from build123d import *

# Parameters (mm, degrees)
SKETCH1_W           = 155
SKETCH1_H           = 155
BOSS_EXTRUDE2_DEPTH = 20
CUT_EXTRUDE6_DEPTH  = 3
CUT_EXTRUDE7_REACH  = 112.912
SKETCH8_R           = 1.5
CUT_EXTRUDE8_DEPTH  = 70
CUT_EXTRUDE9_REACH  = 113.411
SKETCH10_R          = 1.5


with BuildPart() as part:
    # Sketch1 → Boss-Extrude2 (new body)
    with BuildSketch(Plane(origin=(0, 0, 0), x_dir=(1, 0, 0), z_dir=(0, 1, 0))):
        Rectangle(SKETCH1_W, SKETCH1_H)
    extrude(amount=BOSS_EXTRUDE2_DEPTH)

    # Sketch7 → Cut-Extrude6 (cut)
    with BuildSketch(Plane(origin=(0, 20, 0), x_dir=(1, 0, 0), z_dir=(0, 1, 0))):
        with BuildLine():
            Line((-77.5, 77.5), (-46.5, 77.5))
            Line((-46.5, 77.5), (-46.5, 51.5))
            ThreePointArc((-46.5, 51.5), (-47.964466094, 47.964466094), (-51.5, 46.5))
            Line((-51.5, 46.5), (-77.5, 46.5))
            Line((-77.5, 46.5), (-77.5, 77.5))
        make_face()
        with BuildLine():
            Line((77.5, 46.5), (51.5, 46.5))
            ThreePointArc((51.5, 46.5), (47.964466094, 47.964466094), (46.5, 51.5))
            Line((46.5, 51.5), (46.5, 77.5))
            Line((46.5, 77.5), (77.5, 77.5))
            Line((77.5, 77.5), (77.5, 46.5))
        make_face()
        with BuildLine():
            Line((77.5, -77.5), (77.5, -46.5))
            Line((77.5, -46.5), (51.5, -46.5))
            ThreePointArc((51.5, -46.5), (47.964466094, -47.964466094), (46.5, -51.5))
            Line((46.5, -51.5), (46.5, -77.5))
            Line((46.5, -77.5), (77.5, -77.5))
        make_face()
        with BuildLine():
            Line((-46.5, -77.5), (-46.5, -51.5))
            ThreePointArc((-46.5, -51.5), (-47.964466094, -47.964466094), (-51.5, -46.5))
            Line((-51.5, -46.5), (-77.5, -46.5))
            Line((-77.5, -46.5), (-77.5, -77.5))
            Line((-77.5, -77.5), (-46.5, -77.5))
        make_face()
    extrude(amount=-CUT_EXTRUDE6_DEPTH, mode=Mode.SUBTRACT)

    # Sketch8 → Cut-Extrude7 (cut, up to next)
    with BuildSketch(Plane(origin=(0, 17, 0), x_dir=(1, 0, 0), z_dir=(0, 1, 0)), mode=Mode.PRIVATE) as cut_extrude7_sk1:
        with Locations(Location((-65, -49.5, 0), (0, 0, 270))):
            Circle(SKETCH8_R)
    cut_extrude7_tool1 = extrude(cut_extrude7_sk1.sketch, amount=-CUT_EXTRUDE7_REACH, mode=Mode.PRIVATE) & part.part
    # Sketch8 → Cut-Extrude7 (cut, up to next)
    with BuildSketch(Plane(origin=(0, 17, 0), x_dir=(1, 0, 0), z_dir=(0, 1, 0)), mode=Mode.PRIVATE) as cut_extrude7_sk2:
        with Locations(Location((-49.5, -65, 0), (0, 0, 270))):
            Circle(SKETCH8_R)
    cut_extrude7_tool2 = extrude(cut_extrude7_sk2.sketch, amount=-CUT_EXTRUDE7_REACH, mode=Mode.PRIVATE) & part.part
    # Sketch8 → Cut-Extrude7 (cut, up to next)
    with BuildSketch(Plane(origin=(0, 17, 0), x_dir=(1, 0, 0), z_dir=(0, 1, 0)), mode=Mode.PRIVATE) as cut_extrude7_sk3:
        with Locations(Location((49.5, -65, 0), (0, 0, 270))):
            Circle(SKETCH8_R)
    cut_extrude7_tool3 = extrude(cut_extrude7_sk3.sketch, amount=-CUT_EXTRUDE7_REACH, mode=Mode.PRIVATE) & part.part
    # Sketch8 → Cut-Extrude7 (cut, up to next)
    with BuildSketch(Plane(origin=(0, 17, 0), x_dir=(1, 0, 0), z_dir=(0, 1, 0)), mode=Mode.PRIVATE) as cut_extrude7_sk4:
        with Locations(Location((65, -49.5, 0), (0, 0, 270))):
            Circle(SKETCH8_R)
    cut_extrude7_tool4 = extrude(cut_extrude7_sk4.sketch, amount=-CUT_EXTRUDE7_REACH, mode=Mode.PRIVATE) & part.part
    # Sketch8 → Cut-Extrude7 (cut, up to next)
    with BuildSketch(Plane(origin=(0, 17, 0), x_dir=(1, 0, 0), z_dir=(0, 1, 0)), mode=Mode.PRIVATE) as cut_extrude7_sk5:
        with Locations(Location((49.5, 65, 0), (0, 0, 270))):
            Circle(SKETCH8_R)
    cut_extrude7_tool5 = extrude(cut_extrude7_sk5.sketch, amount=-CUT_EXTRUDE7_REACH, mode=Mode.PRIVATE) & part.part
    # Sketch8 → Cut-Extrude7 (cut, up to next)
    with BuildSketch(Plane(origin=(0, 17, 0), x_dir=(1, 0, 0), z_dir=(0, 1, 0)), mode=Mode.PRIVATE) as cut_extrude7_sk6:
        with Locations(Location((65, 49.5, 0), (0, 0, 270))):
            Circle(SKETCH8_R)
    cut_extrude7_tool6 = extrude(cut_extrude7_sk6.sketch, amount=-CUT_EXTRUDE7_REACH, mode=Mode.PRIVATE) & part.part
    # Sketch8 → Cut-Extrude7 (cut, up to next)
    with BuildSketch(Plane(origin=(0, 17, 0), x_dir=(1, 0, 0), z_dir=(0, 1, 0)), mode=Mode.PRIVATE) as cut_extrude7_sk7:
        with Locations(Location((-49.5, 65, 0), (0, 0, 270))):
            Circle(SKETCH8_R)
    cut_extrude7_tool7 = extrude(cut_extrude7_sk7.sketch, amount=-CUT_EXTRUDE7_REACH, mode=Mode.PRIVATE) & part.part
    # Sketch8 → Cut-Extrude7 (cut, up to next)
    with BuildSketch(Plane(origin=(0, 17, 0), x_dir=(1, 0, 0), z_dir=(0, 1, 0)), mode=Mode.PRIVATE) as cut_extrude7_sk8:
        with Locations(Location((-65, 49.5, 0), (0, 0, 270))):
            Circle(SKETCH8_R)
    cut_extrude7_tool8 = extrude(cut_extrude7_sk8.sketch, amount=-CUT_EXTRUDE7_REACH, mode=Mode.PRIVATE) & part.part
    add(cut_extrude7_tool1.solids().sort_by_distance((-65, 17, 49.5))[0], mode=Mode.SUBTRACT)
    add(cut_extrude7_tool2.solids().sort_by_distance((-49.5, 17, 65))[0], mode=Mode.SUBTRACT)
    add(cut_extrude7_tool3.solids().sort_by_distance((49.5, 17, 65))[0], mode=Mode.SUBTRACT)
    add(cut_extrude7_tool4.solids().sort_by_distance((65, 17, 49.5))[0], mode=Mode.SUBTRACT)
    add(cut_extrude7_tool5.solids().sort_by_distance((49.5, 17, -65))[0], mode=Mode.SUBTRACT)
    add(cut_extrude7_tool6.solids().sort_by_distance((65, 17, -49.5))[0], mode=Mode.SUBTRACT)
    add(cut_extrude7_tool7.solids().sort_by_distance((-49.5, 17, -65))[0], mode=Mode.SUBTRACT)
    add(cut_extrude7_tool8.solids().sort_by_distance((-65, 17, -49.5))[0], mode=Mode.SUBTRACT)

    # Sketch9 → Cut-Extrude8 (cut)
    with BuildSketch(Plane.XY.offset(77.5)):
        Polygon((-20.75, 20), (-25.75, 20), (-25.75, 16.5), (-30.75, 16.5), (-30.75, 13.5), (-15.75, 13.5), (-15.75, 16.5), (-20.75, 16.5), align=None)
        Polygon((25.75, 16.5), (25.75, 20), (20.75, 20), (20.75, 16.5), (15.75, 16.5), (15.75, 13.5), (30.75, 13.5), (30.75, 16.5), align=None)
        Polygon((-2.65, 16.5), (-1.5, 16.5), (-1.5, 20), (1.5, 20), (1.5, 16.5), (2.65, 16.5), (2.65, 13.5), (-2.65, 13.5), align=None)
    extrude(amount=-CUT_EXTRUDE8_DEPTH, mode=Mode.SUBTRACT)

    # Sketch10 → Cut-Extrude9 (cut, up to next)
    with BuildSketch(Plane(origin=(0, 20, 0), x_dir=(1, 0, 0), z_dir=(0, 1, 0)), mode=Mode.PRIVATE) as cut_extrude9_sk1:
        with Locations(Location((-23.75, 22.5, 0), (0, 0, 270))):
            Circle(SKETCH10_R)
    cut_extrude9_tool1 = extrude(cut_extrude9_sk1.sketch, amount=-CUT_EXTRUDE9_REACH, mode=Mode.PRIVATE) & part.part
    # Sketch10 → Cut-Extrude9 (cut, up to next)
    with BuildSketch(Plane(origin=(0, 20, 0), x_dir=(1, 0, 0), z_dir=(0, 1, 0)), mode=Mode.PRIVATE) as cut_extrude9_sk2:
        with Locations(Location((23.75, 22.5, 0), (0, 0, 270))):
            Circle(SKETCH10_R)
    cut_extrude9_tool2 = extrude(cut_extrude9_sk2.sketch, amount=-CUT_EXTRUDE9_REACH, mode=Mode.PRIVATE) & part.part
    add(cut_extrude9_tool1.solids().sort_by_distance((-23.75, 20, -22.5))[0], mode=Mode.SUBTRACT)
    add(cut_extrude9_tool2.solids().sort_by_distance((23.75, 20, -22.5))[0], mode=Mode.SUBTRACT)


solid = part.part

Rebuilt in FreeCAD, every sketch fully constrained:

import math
import FreeCAD as App
import Part
import Sketcher

V = App.Vector


def add_polygon(sketch, points):
    """Adds a closed chain of lines whose ends are joined by coincident constraints."""
    first, n = sketch.GeometryCount, len(points)
    for a, b in zip(points, points[1:] + points[:1]):
        sketch.addGeometry(Part.LineSegment(App.Vector(*a, 0), App.Vector(*b, 0)), False)
    for i in range(n):
        sketch.addConstraint(Sketcher.Constraint("Coincident", first + i, 2, first + (i + 1) % n, 1))

doc = App.newDocument("Part")
body = doc.addObject("PartDesign::Body", "Body")

sketch1 = body.newObject("Sketcher::SketchObject", "Sketch")
sketch1.AttachmentSupport = (doc.getObject("XZ_Plane"), [""])
sketch1.MapMode = "FlatFace"
add_polygon(sketch1, [(-78, -78), (-78, 78), (78, 78), (78, -78)])
sketch1.addConstraint([
    Sketcher.Constraint("Vertical", 0),
    Sketcher.Constraint("Horizontal", 1),
    Sketcher.Constraint("Vertical", 2),
    Sketcher.Constraint("Horizontal", 3),
    Sketcher.Constraint("Symmetric", 0, 2, 2, 2, -1, 1),
    Sketcher.Constraint("Equal", 3, 0),
    Sketcher.Constraint("DistanceX", 1, 1, 1, 2, 155.0),
])
pad1 = body.newObject("PartDesign::Pad", "Pad")
pad1.Profile = sketch1
pad1.Length = 20
pad1.Reversed = True

sketch2 = body.newObject("Sketcher::SketchObject", "Sketch001")
sketch2.AttachmentSupport = (doc.getObject("XZ_Plane"), [""])
sketch2.MapMode = "FlatFace"
sketch2.AttachmentOffset = App.Placement(V(0, 0, -20), App.Rotation())
sketch2.addGeometry([
    Part.LineSegment(V(-46, -78, 0), V(-78, -78, 0)),
    Part.LineSegment(V(-78, -78, 0), V(-78, -46, 0)),
    Part.LineSegment(V(-78, -46, 0), V(-52, -46, 0)),
    Part.ArcOfCircle(Part.Circle(V(-52, -52, 0), V(0, 0, 1), 5), math.radians(0), math.radians(90)),
    Part.LineSegment(V(-46, -52, 0), V(-46, -78, 0)),
    Part.LineSegment(V(52, -46, 0), V(78, -46, 0)),
    Part.LineSegment(V(78, -46, 0), V(78, -78, 0)),
    Part.LineSegment(V(78, -78, 0), V(46, -78, 0)),
    Part.LineSegment(V(46, -78, 0), V(46, -52, 0)),
    Part.ArcOfCircle(Part.Circle(V(52, -52, 0), V(0, 0, 1), 5), math.radians(90), math.radians(180)),
    Part.LineSegment(V(78, 78, 0), V(78, 46, 0)),
    Part.LineSegment(V(78, 46, 0), V(52, 46, 0)),
    Part.ArcOfCircle(Part.Circle(V(52, 52, 0), V(0, 0, 1), 5), math.radians(180), math.radians(270)),
    Part.LineSegment(V(46, 52, 0), V(46, 78, 0)),
    Part.LineSegment(V(46, 78, 0), V(78, 78, 0)),
    Part.LineSegment(V(-46, 78, 0), V(-46, 52, 0)),
    Part.ArcOfCircle(Part.Circle(V(-52, 52, 0), V(0, 0, 1), 5), math.radians(-90), math.radians(0)),
    Part.LineSegment(V(-52, 46, 0), V(-78, 46, 0)),
    Part.LineSegment(V(-78, 46, 0), V(-78, 78, 0)),
    Part.LineSegment(V(-78, 78, 0), V(-46, 78, 0)),
], False)
sketch2.addConstraint([
    Sketcher.Constraint("Coincident", 0, 2, 1, 1),
    Sketcher.Constraint("Coincident", 1, 2, 2, 1),
    Sketcher.Constraint("Tangent", 2, 2, 3, 2),
    Sketcher.Constraint("Tangent", 3, 1, 4, 1),
    Sketcher.Constraint("Coincident", 4, 2, 0, 1),
    Sketcher.Constraint("Coincident", 5, 2, 6, 1),
    Sketcher.Constraint("Coincident", 6, 2, 7, 1),
    Sketcher.Constraint("Coincident", 7, 2, 8, 1),
    Sketcher.Constraint("Tangent", 8, 2, 9, 2),
    Sketcher.Constraint("Tangent", 9, 1, 5, 1),
    Sketcher.Constraint("Coincident", 10, 2, 11, 1),
    Sketcher.Constraint("Tangent", 11, 2, 12, 2),
    Sketcher.Constraint("Tangent", 12, 1, 13, 1),
    Sketcher.Constraint("Coincident", 13, 2, 14, 1),
    Sketcher.Constraint("Coincident", 14, 2, 10, 1),
    Sketcher.Constraint("Tangent", 15, 2, 16, 2),
    Sketcher.Constraint("Tangent", 16, 1, 17, 1),
    Sketcher.Constraint("Coincident", 17, 2, 18, 1),
    Sketcher.Constraint("Coincident", 18, 2, 19, 1),
    Sketcher.Constraint("Coincident", 19, 2, 15, 1),
    Sketcher.Constraint("Horizontal", 0),
    Sketcher.Constraint("Vertical", 1),
    Sketcher.Constraint("Horizontal", 2),
    Sketcher.Constraint("Vertical", 4),
    Sketcher.Constraint("Horizontal", 5),
    Sketcher.Constraint("Vertical", 6),
    Sketcher.Constraint("Horizontal", 7),
    Sketcher.Constraint("Vertical", 8),
    Sketcher.Constraint("Vertical", 10),
    Sketcher.Constraint("Horizontal", 11),
    Sketcher.Constraint("Vertical", 13),
    Sketcher.Constraint("Horizontal", 14),
    Sketcher.Constraint("Vertical", 15),
    Sketcher.Constraint("Horizontal", 17),
    Sketcher.Constraint("Vertical", 18),
    Sketcher.Constraint("Horizontal", 19),
    Sketcher.Constraint("Equal", 3, 9),
    Sketcher.Constraint("Equal", 9, 12),
    Sketcher.Constraint("Equal", 12, 16),
    Sketcher.Constraint("Symmetric", 3, 3, 12, 3, -1, 1),
    Sketcher.Constraint("Symmetric", 9, 3, 16, 3, -1, 1),
    Sketcher.Constraint("Symmetric", 0, 2, 14, 2, -1, 1),
    Sketcher.Constraint("Symmetric", 6, 2, 18, 2, -1, 1),
    Sketcher.Constraint("Symmetric", 3, 3, 9, 3, -2),
    Sketcher.Constraint("Symmetric", 0, 2, 6, 2, -2),
    Sketcher.Constraint("Equal", 19, 1),
    Sketcher.Constraint("Radius", 3, 5.0),
    Sketcher.Constraint("DistanceX", 0, 2, 0, 1, 31.0),
    Sketcher.Constraint("DistanceX", 3, 3, 9, 3, 103.0),
    Sketcher.Constraint("DistanceY", 9, 3, 12, 3, 103.0),
])
pocket1 = body.newObject("PartDesign::Pocket", "Pocket")
pocket1.Profile = sketch2
pocket1.Length = 3
pocket1.Reversed = True

sketch3 = body.newObject("Sketcher::SketchObject", "Sketch002")
sketch3.AttachmentSupport = (doc.getObject("XZ_Plane"), [""])
sketch3.MapMode = "FlatFace"
sketch3.AttachmentOffset = App.Placement(V(0, 0, -17), App.Rotation())
sketch3.addGeometry(Part.Circle(V(-65, 49.5, 0), V(0, 0, 1), 1.5), False)
sketch3.addConstraint([
    Sketcher.Constraint("Diameter", 0, 3.0),
    Sketcher.Constraint("DistanceX", 0, 3, -1, 1, 65.0),
    Sketcher.Constraint("DistanceY", -1, 1, 0, 3, 49.5),
])
pocket2 = body.newObject("PartDesign::Pocket", "Pocket001")
pocket2.Profile = sketch3
pocket2.Type = "UpToFirst"
pocket2.Reversed = True

sketch4 = body.newObject("Sketcher::SketchObject", "Sketch003")
sketch4.AttachmentSupport = (doc.getObject("XZ_Plane"), [""])
sketch4.MapMode = "FlatFace"
sketch4.AttachmentOffset = App.Placement(V(0, 0, -17), App.Rotation())
sketch4.addGeometry(Part.Circle(V(-49.5, 65, 0), V(0, 0, 1), 1.5), False)
sketch4.addConstraint([
    Sketcher.Constraint("Diameter", 0, 3.0),
    Sketcher.Constraint("DistanceY", -1, 1, 0, 3, 65.0),
    Sketcher.Constraint("DistanceX", 0, 3, -1, 1, 49.5),
])
pocket3 = body.newObject("PartDesign::Pocket", "Pocket002")
pocket3.Profile = sketch4
pocket3.Type = "UpToFirst"
pocket3.Reversed = True

sketch5 = body.newObject("Sketcher::SketchObject", "Sketch004")
sketch5.AttachmentSupport = (doc.getObject("XZ_Plane"), [""])
sketch5.MapMode = "FlatFace"
sketch5.AttachmentOffset = App.Placement(V(0, 0, -17), App.Rotation())
sketch5.addGeometry(Part.Circle(V(49.5, 65, 0), V(0, 0, 1), 1.5), False)
sketch5.addConstraint([
    Sketcher.Constraint("Diameter", 0, 3.0),
    Sketcher.Constraint("DistanceY", -1, 1, 0, 3, 65.0),
    Sketcher.Constraint("DistanceX", -1, 1, 0, 3, 49.5),
])
pocket4 = body.newObject("PartDesign::Pocket", "Pocket003")
pocket4.Profile = sketch5
pocket4.Type = "UpToFirst"
pocket4.Reversed = True

sketch6 = body.newObject("Sketcher::SketchObject", "Sketch005")
sketch6.AttachmentSupport = (doc.getObject("XZ_Plane"), [""])
sketch6.MapMode = "FlatFace"
sketch6.AttachmentOffset = App.Placement(V(0, 0, -17), App.Rotation())
sketch6.addGeometry(Part.Circle(V(65, 49.5, 0), V(0, 0, 1), 1.5), False)
sketch6.addConstraint([
    Sketcher.Constraint("Diameter", 0, 3.0),
    Sketcher.Constraint("DistanceX", -1, 1, 0, 3, 65.0),
    Sketcher.Constraint("DistanceY", -1, 1, 0, 3, 49.5),
])
pocket5 = body.newObject("PartDesign::Pocket", "Pocket004")
pocket5.Profile = sketch6
pocket5.Type = "UpToFirst"
pocket5.Reversed = True

sketch7 = body.newObject("Sketcher::SketchObject", "Sketch006")
sketch7.AttachmentSupport = (doc.getObject("XZ_Plane"), [""])
sketch7.MapMode = "FlatFace"
sketch7.AttachmentOffset = App.Placement(V(0, 0, -17), App.Rotation())
sketch7.addGeometry(Part.Circle(V(49.5, -65, 0), V(0, 0, 1), 1.5), False)
sketch7.addConstraint([
    Sketcher.Constraint("Diameter", 0, 3.0),
    Sketcher.Constraint("DistanceY", 0, 3, -1, 1, 65.0),
    Sketcher.Constraint("DistanceX", -1, 1, 0, 3, 49.5),
])
pocket6 = body.newObject("PartDesign::Pocket", "Pocket005")
pocket6.Profile = sketch7
pocket6.Type = "UpToFirst"
pocket6.Reversed = True

sketch8 = body.newObject("Sketcher::SketchObject", "Sketch007")
sketch8.AttachmentSupport = (doc.getObject("XZ_Plane"), [""])
sketch8.MapMode = "FlatFace"
sketch8.AttachmentOffset = App.Placement(V(0, 0, -17), App.Rotation())
sketch8.addGeometry(Part.Circle(V(65, -49.5, 0), V(0, 0, 1), 1.5), False)
sketch8.addConstraint([
    Sketcher.Constraint("Diameter", 0, 3.0),
    Sketcher.Constraint("DistanceX", -1, 1, 0, 3, 65.0),
    Sketcher.Constraint("DistanceY", 0, 3, -1, 1, 49.5),
])
pocket7 = body.newObject("PartDesign::Pocket", "Pocket006")
pocket7.Profile = sketch8
pocket7.Type = "UpToFirst"
pocket7.Reversed = True

sketch9 = body.newObject("Sketcher::SketchObject", "Sketch008")
sketch9.AttachmentSupport = (doc.getObject("XZ_Plane"), [""])
sketch9.MapMode = "FlatFace"
sketch9.AttachmentOffset = App.Placement(V(0, 0, -17), App.Rotation())
sketch9.addGeometry(Part.Circle(V(-49.5, -65, 0), V(0, 0, 1), 1.5), False)
sketch9.addConstraint([
    Sketcher.Constraint("Diameter", 0, 3.0),
    Sketcher.Constraint("DistanceY", 0, 3, -1, 1, 65.0),
    Sketcher.Constraint("DistanceX", 0, 3, -1, 1, 49.5),
])
pocket8 = body.newObject("PartDesign::Pocket", "Pocket007")
pocket8.Profile = sketch9
pocket8.Type = "UpToFirst"
pocket8.Reversed = True

sketch10 = body.newObject("Sketcher::SketchObject", "Sketch009")
sketch10.AttachmentSupport = (doc.getObject("XZ_Plane"), [""])
sketch10.MapMode = "FlatFace"
sketch10.AttachmentOffset = App.Placement(V(0, 0, -17), App.Rotation())
sketch10.addGeometry(Part.Circle(V(-65, -49.5, 0), V(0, 0, 1), 1.5), False)
sketch10.addConstraint([
    Sketcher.Constraint("Diameter", 0, 3.0),
    Sketcher.Constraint("DistanceX", 0, 3, -1, 1, 65.0),
    Sketcher.Constraint("DistanceY", 0, 3, -1, 1, 49.5),
])
pocket9 = body.newObject("PartDesign::Pocket", "Pocket008")
pocket9.Profile = sketch10
pocket9.Type = "UpToFirst"
pocket9.Reversed = True

sketch11 = body.newObject("Sketcher::SketchObject", "Sketch010")
sketch11.AttachmentSupport = (doc.getObject("XY_Plane"), [""])
sketch11.MapMode = "FlatFace"
sketch11.AttachmentOffset = App.Placement(V(0, 0, 77.5), App.Rotation())
add_polygon(sketch11, [(-20.8, 20), (-25.8, 20), (-25.8, 16.5), (-30.8, 16.5), (-30.8, 13.5), (-15.8, 13.5), (-15.8, 16.5), (-20.8, 16.5)])
add_polygon(sketch11, [(25.8, 16.5), (25.8, 20), (20.8, 20), (20.8, 16.5), (15.8, 16.5), (15.8, 13.5), (30.8, 13.5), (30.8, 16.5)])
add_polygon(sketch11, [(-1.5, 16.5), (-2.6, 16.5), (-2.6, 13.5), (2.6, 13.5), (2.6, 16.5), (1.5, 16.5), (1.5, 20), (-1.5, 20)])
sketch11.addConstraint([
    Sketcher.Constraint("Horizontal", 0),
    Sketcher.Constraint("Vertical", 1),
    Sketcher.Constraint("Horizontal", 2),
    Sketcher.Constraint("Vertical", 3),
    Sketcher.Constraint("Horizontal", 4),
    Sketcher.Constraint("Vertical", 5),
    Sketcher.Constraint("Horizontal", 6),
    Sketcher.Constraint("Vertical", 7),
    Sketcher.Constraint("Vertical", 8),
    Sketcher.Constraint("Horizontal", 9),
    Sketcher.Constraint("Vertical", 10),
    Sketcher.Constraint("Horizontal", 11),
    Sketcher.Constraint("Vertical", 12),
    Sketcher.Constraint("Horizontal", 13),
    Sketcher.Constraint("Vertical", 14),
    Sketcher.Constraint("Horizontal", 15),
    Sketcher.Constraint("Horizontal", 16),
    Sketcher.Constraint("Vertical", 17),
    Sketcher.Constraint("Horizontal", 18),
    Sketcher.Constraint("Vertical", 19),
    Sketcher.Constraint("Horizontal", 20),
    Sketcher.Constraint("Vertical", 21),
    Sketcher.Constraint("Horizontal", 22),
    Sketcher.Constraint("Vertical", 23),
    Sketcher.Constraint("Symmetric", 0, 2, 8, 2, -2),
    Sketcher.Constraint("Symmetric", 6, 2, 10, 2, -2),
    Sketcher.Constraint("Symmetric", 4, 2, 12, 2, -2),
    Sketcher.Constraint("Symmetric", 2, 2, 14, 2, -2),
    Sketcher.Constraint("Symmetric", 16, 2, 19, 2, -2),
    Sketcher.Constraint("Horizontal", 2, 2, 5, 2),
    Sketcher.Constraint("Horizontal", 15, 2, 16, 2),
    Sketcher.Constraint("Horizontal", 13, 2, 17, 2),
    Sketcher.Constraint("Horizontal", 9, 2, 21, 2),
    Sketcher.Constraint("Equal", 0, 2),
    Sketcher.Constraint("Equal", 2, 6),
    Sketcher.Constraint("Equal", 16, 20),
    Sketcher.Constraint("Equal", 22, 3),
    Sketcher.Constraint("DistanceX", 0, 2, 0, 1, 5.0),
    Sketcher.Constraint("DistanceX", 22, 2, 22, 1, 3.0),
    Sketcher.Constraint("DistanceX", 18, 1, 18, 2, 5.3),
    Sketcher.Constraint("DistanceY", 1, 2, 1, 1, 3.5),
    Sketcher.Constraint("DistanceY", -1, 1, 0, 2, 20.0),
    Sketcher.Constraint("DistanceX", 5, 2, 8, 2, 41.5),
])
pocket10 = body.newObject("PartDesign::Pocket", "Pocket009")
pocket10.Profile = sketch11
pocket10.Length = 70

sketch12 = body.newObject("Sketcher::SketchObject", "Sketch011")
sketch12.AttachmentSupport = (doc.getObject("XZ_Plane"), [""])
sketch12.MapMode = "FlatFace"
sketch12.AttachmentOffset = App.Placement(V(0, 0, -20), App.Rotation())
sketch12.addGeometry(Part.Circle(V(-23.8, -22.5, 0), V(0, 0, 1), 1.5), False)
sketch12.addConstraint([
    Sketcher.Constraint("Diameter", 0, 3.0),
    Sketcher.Constraint("DistanceY", 0, 3, -1, 1, 22.5),
    Sketcher.Constraint("DistanceX", 0, 3, -1, 1, 23.75),
])
pocket11 = body.newObject("PartDesign::Pocket", "Pocket010")
pocket11.Profile = sketch12
pocket11.Type = "UpToFirst"
pocket11.Reversed = True

sketch13 = body.newObject("Sketcher::SketchObject", "Sketch012")
sketch13.AttachmentSupport = (doc.getObject("XZ_Plane"), [""])
sketch13.MapMode = "FlatFace"
sketch13.AttachmentOffset = App.Placement(V(0, 0, -20), App.Rotation())
sketch13.addGeometry(Part.Circle(V(23.8, -22.5, 0), V(0, 0, 1), 1.5), False)
sketch13.addConstraint([
    Sketcher.Constraint("Diameter", 0, 3.0),
    Sketcher.Constraint("DistanceY", 0, 3, -1, 1, 22.5),
    Sketcher.Constraint("DistanceX", -1, 1, 0, 3, 23.75),
])
pocket12 = body.newObject("PartDesign::Pocket", "Pocket011")
pocket12.Profile = sketch13
pocket12.Type = "UpToFirst"
pocket12.Reversed = True

doc.recompute()
